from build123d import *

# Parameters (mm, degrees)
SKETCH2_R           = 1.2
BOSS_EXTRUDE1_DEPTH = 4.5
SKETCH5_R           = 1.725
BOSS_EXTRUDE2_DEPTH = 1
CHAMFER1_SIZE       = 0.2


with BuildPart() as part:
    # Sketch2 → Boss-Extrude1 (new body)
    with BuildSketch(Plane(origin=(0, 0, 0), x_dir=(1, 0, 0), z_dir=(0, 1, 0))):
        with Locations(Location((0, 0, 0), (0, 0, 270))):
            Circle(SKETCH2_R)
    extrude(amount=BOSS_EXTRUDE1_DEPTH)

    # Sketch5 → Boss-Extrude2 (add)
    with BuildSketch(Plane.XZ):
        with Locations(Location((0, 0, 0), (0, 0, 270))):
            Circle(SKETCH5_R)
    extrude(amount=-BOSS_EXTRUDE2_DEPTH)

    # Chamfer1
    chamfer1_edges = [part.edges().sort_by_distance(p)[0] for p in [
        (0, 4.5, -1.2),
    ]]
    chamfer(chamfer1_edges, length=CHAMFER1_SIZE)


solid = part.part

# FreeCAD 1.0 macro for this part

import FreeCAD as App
import Part
import Sketcher

V = App.Vector
Q = App.Units.Quantity


def edges_at(feature, points):
    """Names of the edges that pass closest to the given points."""
    edges = feature.Shape.Edges
    near = lambda p: min(range(len(edges)), key=lambda i: edges[i].distToShape(Part.Vertex(*p))[0])
    return sorted({f"Edge{near(p) + 1}" for p in points})

doc = App.newDocument("Part")
body = doc.addObject("PartDesign::Body", "Body")

sketch1 = body.newObject("Sketcher::SketchObject", "Sketch")
sketch1.AttachmentSupport = (doc.getObject("XZ_Plane"), [""])
sketch1.MapMode = "FlatFace"
sketch1.addGeometry(Part.Circle(V(0, 0, 0), V(0, 0, 1), 1.2), False)
sketch1.addConstraint(Sketcher.Constraint("Coincident", 0, 3, -1, 1))
sketch1.addConstraint(Sketcher.Constraint("Diameter", 0, Q("2.4 mm")))
pad1 = body.newObject("PartDesign::Pad", "Pad")
pad1.Profile = sketch1
pad1.Length = 4.5
pad1.Reversed = True

sketch2 = body.newObject("Sketcher::SketchObject", "Sketch001")
sketch2.AttachmentSupport = (doc.getObject("XZ_Plane"), [""])
sketch2.MapMode = "FlatFace"
sketch2.addGeometry(Part.Circle(V(0, 0, 0), V(0, 0, 1), 1.7), False)
sketch2.addConstraint(Sketcher.Constraint("Coincident", 0, 3, -1, 1))
sketch2.addConstraint(Sketcher.Constraint("Diameter", 0, Q("3.45 mm")))
pad2 = body.newObject("PartDesign::Pad", "Pad001")
pad2.Profile = sketch2
pad2.Length = 1
pad2.Reversed = True
doc.recompute()

chamfer = body.newObject("PartDesign::Chamfer", "Chamfer")
chamfer.Base = (pad2, edges_at(pad2, [(0, 4.5, -1.2)]))
chamfer.Size = 0.2

doc.recompute()
